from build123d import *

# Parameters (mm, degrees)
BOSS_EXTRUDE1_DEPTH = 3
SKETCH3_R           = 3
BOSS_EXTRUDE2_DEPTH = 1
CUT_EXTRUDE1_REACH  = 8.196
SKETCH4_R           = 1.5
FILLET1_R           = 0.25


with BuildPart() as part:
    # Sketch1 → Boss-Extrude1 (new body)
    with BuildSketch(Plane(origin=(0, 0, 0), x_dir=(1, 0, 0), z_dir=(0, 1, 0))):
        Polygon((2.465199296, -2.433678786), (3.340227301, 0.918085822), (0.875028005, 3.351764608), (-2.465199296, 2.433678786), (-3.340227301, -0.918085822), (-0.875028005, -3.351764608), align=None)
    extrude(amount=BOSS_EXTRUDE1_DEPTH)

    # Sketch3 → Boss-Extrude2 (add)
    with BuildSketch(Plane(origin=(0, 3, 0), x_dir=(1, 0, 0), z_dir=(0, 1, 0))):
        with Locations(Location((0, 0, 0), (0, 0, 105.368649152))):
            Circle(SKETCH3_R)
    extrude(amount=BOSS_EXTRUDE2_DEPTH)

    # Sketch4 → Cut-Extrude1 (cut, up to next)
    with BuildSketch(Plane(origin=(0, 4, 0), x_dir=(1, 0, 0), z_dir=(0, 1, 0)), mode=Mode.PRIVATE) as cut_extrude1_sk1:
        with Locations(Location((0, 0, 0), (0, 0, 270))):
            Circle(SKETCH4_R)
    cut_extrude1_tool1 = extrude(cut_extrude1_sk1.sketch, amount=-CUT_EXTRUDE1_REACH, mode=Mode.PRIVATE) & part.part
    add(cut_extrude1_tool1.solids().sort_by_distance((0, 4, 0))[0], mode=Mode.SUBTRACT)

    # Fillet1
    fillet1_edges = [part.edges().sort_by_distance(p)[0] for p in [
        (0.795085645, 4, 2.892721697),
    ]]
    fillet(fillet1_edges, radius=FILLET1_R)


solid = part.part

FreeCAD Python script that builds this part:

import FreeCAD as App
import Part
import Sketcher
from FreeCAD import Vector


def edges_at(feature, points):
    """Names of the edges that pass closest to the given points."""
    edges = feature.Shape.Edges
    near = lambda p: min(range(len(edges)), key=lambda i: edges[i].distToShape(Part.Vertex(*p))[0])
    return sorted({f"Edge{near(p) + 1}" for p in points})

doc = App.newDocument("Part")
body = doc.addObject("PartDesign::Body", "Body")

# Sketch on XZ plane
sketch1 = doc.addObject("Sketcher::SketchObject", "Sketch")
body.addObject(sketch1)
sketch1.AttachmentSupport = (doc.XZ_Plane, [""])
sketch1.MapMode = "FlatFace"
sketch1.addGeometry([
    Part.LineSegment(Vector(2.465199, 2.433679, 0), Vector(3.340227, -0.918086, 0)),  # 0
    Part.LineSegment(Vector(3.340227, -0.918086, 0), Vector(0.875028, -3.351765, 0)),  # 1
    Part.LineSegment(Vector(0.875028, -3.351765, 0), Vector(-2.465199, -2.433679, 0)),  # 2
    Part.LineSegment(Vector(-2.465199, -2.433679, 0), Vector(-3.340227, 0.918086, 0)),  # 3
    Part.LineSegment(Vector(-3.340227, 0.918086, 0), Vector(-0.875028, 3.351765, 0)),  # 4
    Part.LineSegment(Vector(-0.875028, 3.351765, 0), Vector(2.465199, 2.433679, 0)),  # 5
], False)
sketch1.addConstraint([
    Sketcher.Constraint("Coincident", 0, 2, 1, 1),
    Sketcher.Constraint("Coincident", 1, 2, 2, 1),
    Sketcher.Constraint("Coincident", 2, 2, 3, 1),
    Sketcher.Constraint("Coincident", 3, 2, 4, 1),
    Sketcher.Constraint("Coincident", 4, 2, 5, 1),
    Sketcher.Constraint("Coincident", 5, 2, 0, 1),
    Sketcher.Constraint("Symmetric", 0, 2, 3, 2, -1, 1),
    Sketcher.Constraint("Symmetric", 1, 2, 4, 2, -1, 1),
    Sketcher.Constraint("Symmetric", 2, 2, 5, 2, -1, 1),
    Sketcher.Constraint("Equal", 0, 1),
    Sketcher.Constraint("Equal", 1, 2),
    Sketcher.Constraint("Distance", 0, 3.464102),
    Sketcher.Constraint("DistanceX", 2, 2, -1, 1, 2.465199),
    Sketcher.Constraint("DistanceX", 1, 2, 0, 2, 2.465199),
    Sketcher.Constraint("DistanceX", -1, 1, 1, 2, 0.875028),
])
pad1 = doc.addObject("PartDesign::Pad", "Pad")
body.addObject(pad1)
pad1.Profile = sketch1
pad1.Length = 3
pad1.Reversed = True

# Sketch on XZ plane
sketch2 = doc.addObject("Sketcher::SketchObject", "Sketch001")
body.addObject(sketch2)
sketch2.AttachmentSupport = (doc.XZ_Plane, [""])
sketch2.MapMode = "FlatFace"
sketch2.AttachmentOffset = App.Placement(Vector(0, 0, -3), App.Rotation())
sketch2.addGeometry(Part.Circle(Vector(0, 0, 0), Vector(0, 0, 1), 3), False)
sketch2.addConstraint([
    Sketcher.Constraint("Coincident", 0, 3, -1, 1),
    Sketcher.Constraint("Diameter", 0, 6.0),
])
pad2 = doc.addObject("PartDesign::Pad", "Pad001")
body.addObject(pad2)
pad2.Profile = sketch2
pad2.Length = 1
pad2.Reversed = True

# Sketch on XZ plane
sketch3 = doc.addObject("Sketcher::SketchObject", "Sketch002")
body.addObject(sketch3)
sketch3.AttachmentSupport = (doc.XZ_Plane, [""])
sketch3.MapMode = "FlatFace"
sketch3.AttachmentOffset = App.Placement(Vector(0, 0, -4), App.Rotation())
sketch3.addGeometry(Part.Circle(Vector(0, 0, 0), Vector(0, 0, 1), 1.5), False)
sketch3.addConstraint([
    Sketcher.Constraint("Coincident", 0, 3, -1, 1),
    Sketcher.Constraint("Diameter", 0, 3.0),
])
pocket1 = doc.addObject("PartDesign::Pocket", "Pocket")
body.addObject(pocket1)
pocket1.Profile = sketch3
pocket1.Type = "UpToFirst"
pocket1.Reversed = True
doc.recompute()

fillet = doc.addObject("PartDesign::Fillet", "Fillet")
body.addObject(fillet)
fillet.Base = (pocket1, edges_at(pocket1, [(0.795, 4, 2.893)]))
fillet.Radius = 0.25

doc.recompute()
